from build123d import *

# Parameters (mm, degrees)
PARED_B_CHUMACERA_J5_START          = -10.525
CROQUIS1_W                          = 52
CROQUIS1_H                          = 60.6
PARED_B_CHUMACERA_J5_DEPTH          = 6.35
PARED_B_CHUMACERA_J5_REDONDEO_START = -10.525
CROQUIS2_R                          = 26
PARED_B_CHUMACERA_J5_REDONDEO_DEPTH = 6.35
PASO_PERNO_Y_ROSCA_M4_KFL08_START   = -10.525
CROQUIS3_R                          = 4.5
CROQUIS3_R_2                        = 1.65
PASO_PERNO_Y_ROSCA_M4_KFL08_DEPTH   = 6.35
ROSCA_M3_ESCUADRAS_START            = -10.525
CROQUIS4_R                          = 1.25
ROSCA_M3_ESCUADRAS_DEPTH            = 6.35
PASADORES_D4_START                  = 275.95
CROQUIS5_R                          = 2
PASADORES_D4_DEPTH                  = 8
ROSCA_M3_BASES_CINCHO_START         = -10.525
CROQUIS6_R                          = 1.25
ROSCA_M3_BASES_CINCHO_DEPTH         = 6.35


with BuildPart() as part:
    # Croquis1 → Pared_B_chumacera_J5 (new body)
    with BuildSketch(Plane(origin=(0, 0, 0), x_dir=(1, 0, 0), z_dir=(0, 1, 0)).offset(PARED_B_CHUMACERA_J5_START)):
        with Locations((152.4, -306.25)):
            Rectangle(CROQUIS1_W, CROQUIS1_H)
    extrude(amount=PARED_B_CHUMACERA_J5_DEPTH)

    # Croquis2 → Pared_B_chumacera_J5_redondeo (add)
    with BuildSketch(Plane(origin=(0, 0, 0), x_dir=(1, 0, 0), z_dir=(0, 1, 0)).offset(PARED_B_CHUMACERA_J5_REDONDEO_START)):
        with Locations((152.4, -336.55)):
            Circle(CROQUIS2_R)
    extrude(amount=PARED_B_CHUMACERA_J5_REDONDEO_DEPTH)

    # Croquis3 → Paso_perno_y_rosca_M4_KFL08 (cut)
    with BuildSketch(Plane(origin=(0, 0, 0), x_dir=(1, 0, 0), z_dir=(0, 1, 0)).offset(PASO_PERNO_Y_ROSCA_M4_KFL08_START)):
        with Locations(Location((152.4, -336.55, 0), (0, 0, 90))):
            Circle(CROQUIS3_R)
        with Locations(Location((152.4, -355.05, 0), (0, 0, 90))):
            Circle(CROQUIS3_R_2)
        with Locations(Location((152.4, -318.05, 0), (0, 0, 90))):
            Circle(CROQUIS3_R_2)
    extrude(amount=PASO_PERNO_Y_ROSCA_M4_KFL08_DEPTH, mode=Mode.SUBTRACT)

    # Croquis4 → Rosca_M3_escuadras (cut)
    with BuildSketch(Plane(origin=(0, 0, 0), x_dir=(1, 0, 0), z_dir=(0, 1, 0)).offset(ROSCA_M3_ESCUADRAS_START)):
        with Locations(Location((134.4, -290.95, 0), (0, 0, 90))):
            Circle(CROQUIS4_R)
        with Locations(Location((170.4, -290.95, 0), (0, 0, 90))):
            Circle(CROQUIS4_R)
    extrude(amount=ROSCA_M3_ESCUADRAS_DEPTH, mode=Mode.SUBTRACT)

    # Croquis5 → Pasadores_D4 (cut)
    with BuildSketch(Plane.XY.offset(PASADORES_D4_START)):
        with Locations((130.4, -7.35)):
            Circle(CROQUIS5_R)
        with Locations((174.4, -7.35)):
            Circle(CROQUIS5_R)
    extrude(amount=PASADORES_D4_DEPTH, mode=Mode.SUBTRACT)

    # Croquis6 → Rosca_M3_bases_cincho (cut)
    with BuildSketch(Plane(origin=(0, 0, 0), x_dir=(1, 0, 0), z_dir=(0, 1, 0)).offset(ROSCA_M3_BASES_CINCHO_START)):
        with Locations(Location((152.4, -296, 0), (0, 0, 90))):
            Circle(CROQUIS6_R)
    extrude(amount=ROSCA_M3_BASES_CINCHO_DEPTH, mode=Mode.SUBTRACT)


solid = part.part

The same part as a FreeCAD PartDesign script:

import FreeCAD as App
import Part
import Sketcher
from FreeCAD import Vector
Q = App.Units.Quantity

doc = App.newDocument("Part")
params = doc.addObject("Spreadsheet::Sheet", "Params")
for row, (alias, value) in enumerate([
    ("sketch1_width", "52 mm"),
    ("sketch1_height", "60.6 mm"),
    ("pad1_length", "6.35 mm"),
    ("sketch2_diameter", "52 mm"),
    ("pad2_length", "6.35 mm"),
    ("sketch3_diameter", "9 mm"),
    ("sketch3_diameter2", "3.3 mm"),
    ("pocket1_length", "6.35 mm"),
    ("sketch4_diameter", "2.5 mm"),
    ("pocket2_length", "6.35 mm"),
    ("sketch5_diameter", "4 mm"),
    ("pocket3_length", "8 mm"),
    ("sketch6_diameter", "2.5 mm"),
    ("pocket4_length", "6.35 mm"),
], start=1):
    params.set(f"A{row}", alias)
    params.set(f"B{row}", "=" + value)
    params.setAlias(f"B{row}", alias)

body = doc.addObject("PartDesign::Body", "Body")

# Sketch on XZ plane
sketch1 = body.newObject("Sketcher::SketchObject", "Sketch")
sketch1.AttachmentSupport = (doc.getObject("XZ_Plane"), [""])
sketch1.MapMode = "FlatFace"
sketch1.AttachmentOffset = App.Placement(Vector(0, 0, 10.525), App.Rotation())
sketch1.addGeometry(Part.LineSegment(Vector(126.4, 275.95, 0), Vector(126.4, 336.55, 0)), False)
sketch1.addGeometry(Part.LineSegment(Vector(126.4, 336.55, 0), Vector(178.4, 336.55, 0)), False)
sketch1.addGeometry(Part.LineSegment(Vector(178.4, 336.55, 0), Vector(178.4, 275.95, 0)), False)
sketch1.addGeometry(Part.LineSegment(Vector(178.4, 275.95, 0), Vector(126.4, 275.95, 0)), False)
sketch1.addConstraint(Sketcher.Constraint("Coincident", 0, 2, 1, 1))
sketch1.addConstraint(Sketcher.Constraint("Coincident", 1, 2, 2, 1))
sketch1.addConstraint(Sketcher.Constraint("Coincident", 2, 2, 3, 1))
sketch1.addConstraint(Sketcher.Constraint("Coincident", 3, 2, 0, 1))
sketch1.addConstraint(Sketcher.Constraint("Vertical", 0))
sketch1.addConstraint(Sketcher.Constraint("Horizontal", 1))
sketch1.addConstraint(Sketcher.Constraint("Vertical", 2))
sketch1.addConstraint(Sketcher.Constraint("Horizontal", 3))
sketch1.addConstraint(Sketcher.Constraint("DistanceX", 1, 1, 1, 2, Q("52 mm")))
sketch1.addConstraint(Sketcher.Constraint("DistanceY", 0, 1, 0, 2, Q("60.6 mm")))
sketch1.addConstraint(Sketcher.Constraint("DistanceX", -1, 1, 0, 2, Q("126.4 mm")))
sketch1.addConstraint(Sketcher.Constraint("DistanceY", -1, 1, 0, 2, Q("336.55 mm")))
sketch1.setExpression("Constraints[8]", "Params.sketch1_width")
sketch1.setExpression("Constraints[9]", "Params.sketch1_height")
pad1 = body.newObject("PartDesign::Pad", "Pad")
pad1.Profile = sketch1
pad1.setExpression("Length", "Params.pad1_length")
pad1.Reversed = True

# Sketch on XZ plane
sketch2 = body.newObject("Sketcher::SketchObject", "Sketch001")
sketch2.AttachmentSupport = (doc.getObject("XZ_Plane"), [""])
sketch2.MapMode = "FlatFace"
sketch2.AttachmentOffset = App.Placement(Vector(0, 0, 10.525), App.Rotation())
sketch2.addGeometry(Part.Circle(Vector(152.4, 336.55, 0), Vector(0, 0, 1), 26), False)
sketch2.addConstraint(Sketcher.Constraint("Diameter", 0, Q("52 mm")))
sketch2.addConstraint(Sketcher.Constraint("DistanceX", -1, 1, 0, 3, Q("152.4 mm")))
sketch2.addConstraint(Sketcher.Constraint("DistanceY", -1, 1, 0, 3, Q("336.55 mm")))
sketch2.setExpression("Constraints[0]", "Params.sketch2_diameter")
pad2 = body.newObject("PartDesign::Pad", "Pad001")
pad2.Profile = sketch2
pad2.setExpression("Length", "Params.pad2_length")
pad2.Reversed = True

# Sketch on XZ plane
sketch3 = body.newObject("Sketcher::SketchObject", "Sketch002")
sketch3.AttachmentSupport = (doc.getObject("XZ_Plane"), [""])
sketch3.MapMode = "FlatFace"
sketch3.AttachmentOffset = App.Placement(Vector(0, 0, 10.525), App.Rotation())
sketch3.addGeometry(Part.Circle(Vector(152.4, 336.55, 0), Vector(0, 0, 1), 4.5), False)
sketch3.addGeometry(Part.Circle(Vector(152.4, 355.05, 0), Vector(0, 0, 1), 1.65), False)
sketch3.addGeometry(Part.Circle(Vector(152.4, 318.05, 0), Vector(0, 0, 1), 1.65), False)
sketch3.addConstraint(Sketcher.Constraint("Equal", 1, 2))
sketch3.addConstraint(Sketcher.Constraint("Vertical", 0, 3, 1, 3))
sketch3.addConstraint(Sketcher.Constraint("Vertical", 1, 3, 2, 3))
sketch3.addConstraint(Sketcher.Constraint("Diameter", 0, Q("9 mm")))
sketch3.addConstraint(Sketcher.Constraint("Diameter", 1, Q("3.3 mm")))
sketch3.addConstraint(Sketcher.Constraint("DistanceY", 2, 3, 1, 3, Q("37 mm")))
sketch3.addConstraint(Sketcher.Constraint("DistanceX", -1, 1, 0, 3, Q("152.4 mm")))
sketch3.addConstraint(Sketcher.Constraint("DistanceY", 0, 3, 1, 3, Q("18.5 mm")))
sketch3.addConstraint(Sketcher.Constraint("DistanceY", -1, 1, 0, 3, Q("336.55 mm")))
sketch3.setExpression("Constraints[3]", "Params.sketch3_diameter")
sketch3.setExpression("Constraints[4]", "Params.sketch3_diameter2")
pocket1 = body.newObject("PartDesign::Pocket", "Pocket")
pocket1.Profile = sketch3
pocket1.setExpression("Length", "Params.pocket1_length")

# Sketch on XZ plane
sketch4 = body.newObject("Sketcher::SketchObject", "Sketch003")
sketch4.AttachmentSupport = (doc.getObject("XZ_Plane"), [""])
sketch4.MapMode = "FlatFace"
sketch4.AttachmentOffset = App.Placement(Vector(0, 0, 10.525), App.Rotation())
sketch4.addGeometry(Part.Circle(Vector(134.4, 290.95, 0), Vector(0, 0, 1), 1.25), False)
sketch4.addGeometry(Part.Circle(Vector(170.4, 290.95, 0), Vector(0, 0, 1), 1.25), False)
sketch4.addConstraint(Sketcher.Constraint("Equal", 0, 1))
sketch4.addConstraint(Sketcher.Constraint("Horizontal", 0, 3, 1, 3))
sketch4.addConstraint(Sketcher.Constraint("Diameter", 0, Q("2.5 mm")))
sketch4.addConstraint(Sketcher.Constraint("DistanceX", 0, 3, 1, 3, Q("36 mm")))
sketch4.addConstraint(Sketcher.Constraint("DistanceX", -1, 1, 0, 3, Q("134.4 mm")))
sketch4.addConstraint(Sketcher.Constraint("DistanceY", -1, 1, 0, 3, Q("290.95 mm")))
sketch4.setExpression("Constraints[2]", "Params.sketch4_diameter")
pocket2 = body.newObject("PartDesign::Pocket", "Pocket001")
pocket2.Profile = sketch4
pocket2.setExpression("Length", "Params.pocket2_length")

# Sketch on XY plane
sketch5 = body.newObject("Sketcher::SketchObject", "Sketch004")
sketch5.AttachmentSupport = (doc.getObject("XY_Plane"), [""])
sketch5.MapMode = "FlatFace"
sketch5.AttachmentOffset = App.Placement(Vector(0, 0, 275.95), App.Rotation())
sketch5.addGeometry(Part.Circle(Vector(130.4, -7.35, 0), Vector(0, 0, 1), 2), False)
sketch5.addGeometry(Part.Circle(Vector(174.4, -7.35, 0), Vector(0, 0, 1), 2), False)
sketch5.addConstraint(Sketcher.Constraint("Equal", 0, 1))
sketch5.addConstraint(Sketcher.Constraint("Horizontal", 0, 3, 1, 3))
sketch5.addConstraint(Sketcher.Constraint("Diameter", 0, Q("4 mm")))
sketch5.addConstraint(Sketcher.Constraint("DistanceX", 0, 3, 1, 3, Q("44 mm")))
sketch5.addConstraint(Sketcher.Constraint("DistanceX", -1, 1, 0, 3, Q("130.4 mm")))
sketch5.addConstraint(Sketcher.Constraint("DistanceY", 0, 3, -1, 1, Q("7.35 mm")))
sketch5.setExpression("Constraints[2]", "Params.sketch5_diameter")
pocket3 = body.newObject("PartDesign::Pocket", "Pocket002")
pocket3.Profile = sketch5
pocket3.setExpression("Length", "Params.pocket3_length")
pocket3.Reversed = True

# Sketch on XZ plane
sketch6 = body.newObject("Sketcher::SketchObject", "Sketch005")
sketch6.AttachmentSupport = (doc.getObject("XZ_Plane"), [""])
sketch6.MapMode = "FlatFace"
sketch6.AttachmentOffset = App.Placement(Vector(0, 0, 10.525), App.Rotation())
sketch6.addGeometry(Part.Circle(Vector(152.4, 296, 0), Vector(0, 0, 1), 1.25), False)
sketch6.addConstraint(Sketcher.Constraint("Diameter", 0, Q("2.5 mm")))
sketch6.addConstraint(Sketcher.Constraint("DistanceY", -1, 1, 0, 3, Q("296 mm")))
sketch6.addConstraint(Sketcher.Constraint("DistanceX", -1, 1, 0, 3, Q("152.4 mm")))
sketch6.setExpression("Constraints[0]", "Params.sketch6_diameter")
pocket4 = body.newObject("PartDesign::Pocket", "Pocket003")
pocket4.Profile = sketch6
pocket4.setExpression("Length", "Params.pocket4_length")

doc.recompute()
